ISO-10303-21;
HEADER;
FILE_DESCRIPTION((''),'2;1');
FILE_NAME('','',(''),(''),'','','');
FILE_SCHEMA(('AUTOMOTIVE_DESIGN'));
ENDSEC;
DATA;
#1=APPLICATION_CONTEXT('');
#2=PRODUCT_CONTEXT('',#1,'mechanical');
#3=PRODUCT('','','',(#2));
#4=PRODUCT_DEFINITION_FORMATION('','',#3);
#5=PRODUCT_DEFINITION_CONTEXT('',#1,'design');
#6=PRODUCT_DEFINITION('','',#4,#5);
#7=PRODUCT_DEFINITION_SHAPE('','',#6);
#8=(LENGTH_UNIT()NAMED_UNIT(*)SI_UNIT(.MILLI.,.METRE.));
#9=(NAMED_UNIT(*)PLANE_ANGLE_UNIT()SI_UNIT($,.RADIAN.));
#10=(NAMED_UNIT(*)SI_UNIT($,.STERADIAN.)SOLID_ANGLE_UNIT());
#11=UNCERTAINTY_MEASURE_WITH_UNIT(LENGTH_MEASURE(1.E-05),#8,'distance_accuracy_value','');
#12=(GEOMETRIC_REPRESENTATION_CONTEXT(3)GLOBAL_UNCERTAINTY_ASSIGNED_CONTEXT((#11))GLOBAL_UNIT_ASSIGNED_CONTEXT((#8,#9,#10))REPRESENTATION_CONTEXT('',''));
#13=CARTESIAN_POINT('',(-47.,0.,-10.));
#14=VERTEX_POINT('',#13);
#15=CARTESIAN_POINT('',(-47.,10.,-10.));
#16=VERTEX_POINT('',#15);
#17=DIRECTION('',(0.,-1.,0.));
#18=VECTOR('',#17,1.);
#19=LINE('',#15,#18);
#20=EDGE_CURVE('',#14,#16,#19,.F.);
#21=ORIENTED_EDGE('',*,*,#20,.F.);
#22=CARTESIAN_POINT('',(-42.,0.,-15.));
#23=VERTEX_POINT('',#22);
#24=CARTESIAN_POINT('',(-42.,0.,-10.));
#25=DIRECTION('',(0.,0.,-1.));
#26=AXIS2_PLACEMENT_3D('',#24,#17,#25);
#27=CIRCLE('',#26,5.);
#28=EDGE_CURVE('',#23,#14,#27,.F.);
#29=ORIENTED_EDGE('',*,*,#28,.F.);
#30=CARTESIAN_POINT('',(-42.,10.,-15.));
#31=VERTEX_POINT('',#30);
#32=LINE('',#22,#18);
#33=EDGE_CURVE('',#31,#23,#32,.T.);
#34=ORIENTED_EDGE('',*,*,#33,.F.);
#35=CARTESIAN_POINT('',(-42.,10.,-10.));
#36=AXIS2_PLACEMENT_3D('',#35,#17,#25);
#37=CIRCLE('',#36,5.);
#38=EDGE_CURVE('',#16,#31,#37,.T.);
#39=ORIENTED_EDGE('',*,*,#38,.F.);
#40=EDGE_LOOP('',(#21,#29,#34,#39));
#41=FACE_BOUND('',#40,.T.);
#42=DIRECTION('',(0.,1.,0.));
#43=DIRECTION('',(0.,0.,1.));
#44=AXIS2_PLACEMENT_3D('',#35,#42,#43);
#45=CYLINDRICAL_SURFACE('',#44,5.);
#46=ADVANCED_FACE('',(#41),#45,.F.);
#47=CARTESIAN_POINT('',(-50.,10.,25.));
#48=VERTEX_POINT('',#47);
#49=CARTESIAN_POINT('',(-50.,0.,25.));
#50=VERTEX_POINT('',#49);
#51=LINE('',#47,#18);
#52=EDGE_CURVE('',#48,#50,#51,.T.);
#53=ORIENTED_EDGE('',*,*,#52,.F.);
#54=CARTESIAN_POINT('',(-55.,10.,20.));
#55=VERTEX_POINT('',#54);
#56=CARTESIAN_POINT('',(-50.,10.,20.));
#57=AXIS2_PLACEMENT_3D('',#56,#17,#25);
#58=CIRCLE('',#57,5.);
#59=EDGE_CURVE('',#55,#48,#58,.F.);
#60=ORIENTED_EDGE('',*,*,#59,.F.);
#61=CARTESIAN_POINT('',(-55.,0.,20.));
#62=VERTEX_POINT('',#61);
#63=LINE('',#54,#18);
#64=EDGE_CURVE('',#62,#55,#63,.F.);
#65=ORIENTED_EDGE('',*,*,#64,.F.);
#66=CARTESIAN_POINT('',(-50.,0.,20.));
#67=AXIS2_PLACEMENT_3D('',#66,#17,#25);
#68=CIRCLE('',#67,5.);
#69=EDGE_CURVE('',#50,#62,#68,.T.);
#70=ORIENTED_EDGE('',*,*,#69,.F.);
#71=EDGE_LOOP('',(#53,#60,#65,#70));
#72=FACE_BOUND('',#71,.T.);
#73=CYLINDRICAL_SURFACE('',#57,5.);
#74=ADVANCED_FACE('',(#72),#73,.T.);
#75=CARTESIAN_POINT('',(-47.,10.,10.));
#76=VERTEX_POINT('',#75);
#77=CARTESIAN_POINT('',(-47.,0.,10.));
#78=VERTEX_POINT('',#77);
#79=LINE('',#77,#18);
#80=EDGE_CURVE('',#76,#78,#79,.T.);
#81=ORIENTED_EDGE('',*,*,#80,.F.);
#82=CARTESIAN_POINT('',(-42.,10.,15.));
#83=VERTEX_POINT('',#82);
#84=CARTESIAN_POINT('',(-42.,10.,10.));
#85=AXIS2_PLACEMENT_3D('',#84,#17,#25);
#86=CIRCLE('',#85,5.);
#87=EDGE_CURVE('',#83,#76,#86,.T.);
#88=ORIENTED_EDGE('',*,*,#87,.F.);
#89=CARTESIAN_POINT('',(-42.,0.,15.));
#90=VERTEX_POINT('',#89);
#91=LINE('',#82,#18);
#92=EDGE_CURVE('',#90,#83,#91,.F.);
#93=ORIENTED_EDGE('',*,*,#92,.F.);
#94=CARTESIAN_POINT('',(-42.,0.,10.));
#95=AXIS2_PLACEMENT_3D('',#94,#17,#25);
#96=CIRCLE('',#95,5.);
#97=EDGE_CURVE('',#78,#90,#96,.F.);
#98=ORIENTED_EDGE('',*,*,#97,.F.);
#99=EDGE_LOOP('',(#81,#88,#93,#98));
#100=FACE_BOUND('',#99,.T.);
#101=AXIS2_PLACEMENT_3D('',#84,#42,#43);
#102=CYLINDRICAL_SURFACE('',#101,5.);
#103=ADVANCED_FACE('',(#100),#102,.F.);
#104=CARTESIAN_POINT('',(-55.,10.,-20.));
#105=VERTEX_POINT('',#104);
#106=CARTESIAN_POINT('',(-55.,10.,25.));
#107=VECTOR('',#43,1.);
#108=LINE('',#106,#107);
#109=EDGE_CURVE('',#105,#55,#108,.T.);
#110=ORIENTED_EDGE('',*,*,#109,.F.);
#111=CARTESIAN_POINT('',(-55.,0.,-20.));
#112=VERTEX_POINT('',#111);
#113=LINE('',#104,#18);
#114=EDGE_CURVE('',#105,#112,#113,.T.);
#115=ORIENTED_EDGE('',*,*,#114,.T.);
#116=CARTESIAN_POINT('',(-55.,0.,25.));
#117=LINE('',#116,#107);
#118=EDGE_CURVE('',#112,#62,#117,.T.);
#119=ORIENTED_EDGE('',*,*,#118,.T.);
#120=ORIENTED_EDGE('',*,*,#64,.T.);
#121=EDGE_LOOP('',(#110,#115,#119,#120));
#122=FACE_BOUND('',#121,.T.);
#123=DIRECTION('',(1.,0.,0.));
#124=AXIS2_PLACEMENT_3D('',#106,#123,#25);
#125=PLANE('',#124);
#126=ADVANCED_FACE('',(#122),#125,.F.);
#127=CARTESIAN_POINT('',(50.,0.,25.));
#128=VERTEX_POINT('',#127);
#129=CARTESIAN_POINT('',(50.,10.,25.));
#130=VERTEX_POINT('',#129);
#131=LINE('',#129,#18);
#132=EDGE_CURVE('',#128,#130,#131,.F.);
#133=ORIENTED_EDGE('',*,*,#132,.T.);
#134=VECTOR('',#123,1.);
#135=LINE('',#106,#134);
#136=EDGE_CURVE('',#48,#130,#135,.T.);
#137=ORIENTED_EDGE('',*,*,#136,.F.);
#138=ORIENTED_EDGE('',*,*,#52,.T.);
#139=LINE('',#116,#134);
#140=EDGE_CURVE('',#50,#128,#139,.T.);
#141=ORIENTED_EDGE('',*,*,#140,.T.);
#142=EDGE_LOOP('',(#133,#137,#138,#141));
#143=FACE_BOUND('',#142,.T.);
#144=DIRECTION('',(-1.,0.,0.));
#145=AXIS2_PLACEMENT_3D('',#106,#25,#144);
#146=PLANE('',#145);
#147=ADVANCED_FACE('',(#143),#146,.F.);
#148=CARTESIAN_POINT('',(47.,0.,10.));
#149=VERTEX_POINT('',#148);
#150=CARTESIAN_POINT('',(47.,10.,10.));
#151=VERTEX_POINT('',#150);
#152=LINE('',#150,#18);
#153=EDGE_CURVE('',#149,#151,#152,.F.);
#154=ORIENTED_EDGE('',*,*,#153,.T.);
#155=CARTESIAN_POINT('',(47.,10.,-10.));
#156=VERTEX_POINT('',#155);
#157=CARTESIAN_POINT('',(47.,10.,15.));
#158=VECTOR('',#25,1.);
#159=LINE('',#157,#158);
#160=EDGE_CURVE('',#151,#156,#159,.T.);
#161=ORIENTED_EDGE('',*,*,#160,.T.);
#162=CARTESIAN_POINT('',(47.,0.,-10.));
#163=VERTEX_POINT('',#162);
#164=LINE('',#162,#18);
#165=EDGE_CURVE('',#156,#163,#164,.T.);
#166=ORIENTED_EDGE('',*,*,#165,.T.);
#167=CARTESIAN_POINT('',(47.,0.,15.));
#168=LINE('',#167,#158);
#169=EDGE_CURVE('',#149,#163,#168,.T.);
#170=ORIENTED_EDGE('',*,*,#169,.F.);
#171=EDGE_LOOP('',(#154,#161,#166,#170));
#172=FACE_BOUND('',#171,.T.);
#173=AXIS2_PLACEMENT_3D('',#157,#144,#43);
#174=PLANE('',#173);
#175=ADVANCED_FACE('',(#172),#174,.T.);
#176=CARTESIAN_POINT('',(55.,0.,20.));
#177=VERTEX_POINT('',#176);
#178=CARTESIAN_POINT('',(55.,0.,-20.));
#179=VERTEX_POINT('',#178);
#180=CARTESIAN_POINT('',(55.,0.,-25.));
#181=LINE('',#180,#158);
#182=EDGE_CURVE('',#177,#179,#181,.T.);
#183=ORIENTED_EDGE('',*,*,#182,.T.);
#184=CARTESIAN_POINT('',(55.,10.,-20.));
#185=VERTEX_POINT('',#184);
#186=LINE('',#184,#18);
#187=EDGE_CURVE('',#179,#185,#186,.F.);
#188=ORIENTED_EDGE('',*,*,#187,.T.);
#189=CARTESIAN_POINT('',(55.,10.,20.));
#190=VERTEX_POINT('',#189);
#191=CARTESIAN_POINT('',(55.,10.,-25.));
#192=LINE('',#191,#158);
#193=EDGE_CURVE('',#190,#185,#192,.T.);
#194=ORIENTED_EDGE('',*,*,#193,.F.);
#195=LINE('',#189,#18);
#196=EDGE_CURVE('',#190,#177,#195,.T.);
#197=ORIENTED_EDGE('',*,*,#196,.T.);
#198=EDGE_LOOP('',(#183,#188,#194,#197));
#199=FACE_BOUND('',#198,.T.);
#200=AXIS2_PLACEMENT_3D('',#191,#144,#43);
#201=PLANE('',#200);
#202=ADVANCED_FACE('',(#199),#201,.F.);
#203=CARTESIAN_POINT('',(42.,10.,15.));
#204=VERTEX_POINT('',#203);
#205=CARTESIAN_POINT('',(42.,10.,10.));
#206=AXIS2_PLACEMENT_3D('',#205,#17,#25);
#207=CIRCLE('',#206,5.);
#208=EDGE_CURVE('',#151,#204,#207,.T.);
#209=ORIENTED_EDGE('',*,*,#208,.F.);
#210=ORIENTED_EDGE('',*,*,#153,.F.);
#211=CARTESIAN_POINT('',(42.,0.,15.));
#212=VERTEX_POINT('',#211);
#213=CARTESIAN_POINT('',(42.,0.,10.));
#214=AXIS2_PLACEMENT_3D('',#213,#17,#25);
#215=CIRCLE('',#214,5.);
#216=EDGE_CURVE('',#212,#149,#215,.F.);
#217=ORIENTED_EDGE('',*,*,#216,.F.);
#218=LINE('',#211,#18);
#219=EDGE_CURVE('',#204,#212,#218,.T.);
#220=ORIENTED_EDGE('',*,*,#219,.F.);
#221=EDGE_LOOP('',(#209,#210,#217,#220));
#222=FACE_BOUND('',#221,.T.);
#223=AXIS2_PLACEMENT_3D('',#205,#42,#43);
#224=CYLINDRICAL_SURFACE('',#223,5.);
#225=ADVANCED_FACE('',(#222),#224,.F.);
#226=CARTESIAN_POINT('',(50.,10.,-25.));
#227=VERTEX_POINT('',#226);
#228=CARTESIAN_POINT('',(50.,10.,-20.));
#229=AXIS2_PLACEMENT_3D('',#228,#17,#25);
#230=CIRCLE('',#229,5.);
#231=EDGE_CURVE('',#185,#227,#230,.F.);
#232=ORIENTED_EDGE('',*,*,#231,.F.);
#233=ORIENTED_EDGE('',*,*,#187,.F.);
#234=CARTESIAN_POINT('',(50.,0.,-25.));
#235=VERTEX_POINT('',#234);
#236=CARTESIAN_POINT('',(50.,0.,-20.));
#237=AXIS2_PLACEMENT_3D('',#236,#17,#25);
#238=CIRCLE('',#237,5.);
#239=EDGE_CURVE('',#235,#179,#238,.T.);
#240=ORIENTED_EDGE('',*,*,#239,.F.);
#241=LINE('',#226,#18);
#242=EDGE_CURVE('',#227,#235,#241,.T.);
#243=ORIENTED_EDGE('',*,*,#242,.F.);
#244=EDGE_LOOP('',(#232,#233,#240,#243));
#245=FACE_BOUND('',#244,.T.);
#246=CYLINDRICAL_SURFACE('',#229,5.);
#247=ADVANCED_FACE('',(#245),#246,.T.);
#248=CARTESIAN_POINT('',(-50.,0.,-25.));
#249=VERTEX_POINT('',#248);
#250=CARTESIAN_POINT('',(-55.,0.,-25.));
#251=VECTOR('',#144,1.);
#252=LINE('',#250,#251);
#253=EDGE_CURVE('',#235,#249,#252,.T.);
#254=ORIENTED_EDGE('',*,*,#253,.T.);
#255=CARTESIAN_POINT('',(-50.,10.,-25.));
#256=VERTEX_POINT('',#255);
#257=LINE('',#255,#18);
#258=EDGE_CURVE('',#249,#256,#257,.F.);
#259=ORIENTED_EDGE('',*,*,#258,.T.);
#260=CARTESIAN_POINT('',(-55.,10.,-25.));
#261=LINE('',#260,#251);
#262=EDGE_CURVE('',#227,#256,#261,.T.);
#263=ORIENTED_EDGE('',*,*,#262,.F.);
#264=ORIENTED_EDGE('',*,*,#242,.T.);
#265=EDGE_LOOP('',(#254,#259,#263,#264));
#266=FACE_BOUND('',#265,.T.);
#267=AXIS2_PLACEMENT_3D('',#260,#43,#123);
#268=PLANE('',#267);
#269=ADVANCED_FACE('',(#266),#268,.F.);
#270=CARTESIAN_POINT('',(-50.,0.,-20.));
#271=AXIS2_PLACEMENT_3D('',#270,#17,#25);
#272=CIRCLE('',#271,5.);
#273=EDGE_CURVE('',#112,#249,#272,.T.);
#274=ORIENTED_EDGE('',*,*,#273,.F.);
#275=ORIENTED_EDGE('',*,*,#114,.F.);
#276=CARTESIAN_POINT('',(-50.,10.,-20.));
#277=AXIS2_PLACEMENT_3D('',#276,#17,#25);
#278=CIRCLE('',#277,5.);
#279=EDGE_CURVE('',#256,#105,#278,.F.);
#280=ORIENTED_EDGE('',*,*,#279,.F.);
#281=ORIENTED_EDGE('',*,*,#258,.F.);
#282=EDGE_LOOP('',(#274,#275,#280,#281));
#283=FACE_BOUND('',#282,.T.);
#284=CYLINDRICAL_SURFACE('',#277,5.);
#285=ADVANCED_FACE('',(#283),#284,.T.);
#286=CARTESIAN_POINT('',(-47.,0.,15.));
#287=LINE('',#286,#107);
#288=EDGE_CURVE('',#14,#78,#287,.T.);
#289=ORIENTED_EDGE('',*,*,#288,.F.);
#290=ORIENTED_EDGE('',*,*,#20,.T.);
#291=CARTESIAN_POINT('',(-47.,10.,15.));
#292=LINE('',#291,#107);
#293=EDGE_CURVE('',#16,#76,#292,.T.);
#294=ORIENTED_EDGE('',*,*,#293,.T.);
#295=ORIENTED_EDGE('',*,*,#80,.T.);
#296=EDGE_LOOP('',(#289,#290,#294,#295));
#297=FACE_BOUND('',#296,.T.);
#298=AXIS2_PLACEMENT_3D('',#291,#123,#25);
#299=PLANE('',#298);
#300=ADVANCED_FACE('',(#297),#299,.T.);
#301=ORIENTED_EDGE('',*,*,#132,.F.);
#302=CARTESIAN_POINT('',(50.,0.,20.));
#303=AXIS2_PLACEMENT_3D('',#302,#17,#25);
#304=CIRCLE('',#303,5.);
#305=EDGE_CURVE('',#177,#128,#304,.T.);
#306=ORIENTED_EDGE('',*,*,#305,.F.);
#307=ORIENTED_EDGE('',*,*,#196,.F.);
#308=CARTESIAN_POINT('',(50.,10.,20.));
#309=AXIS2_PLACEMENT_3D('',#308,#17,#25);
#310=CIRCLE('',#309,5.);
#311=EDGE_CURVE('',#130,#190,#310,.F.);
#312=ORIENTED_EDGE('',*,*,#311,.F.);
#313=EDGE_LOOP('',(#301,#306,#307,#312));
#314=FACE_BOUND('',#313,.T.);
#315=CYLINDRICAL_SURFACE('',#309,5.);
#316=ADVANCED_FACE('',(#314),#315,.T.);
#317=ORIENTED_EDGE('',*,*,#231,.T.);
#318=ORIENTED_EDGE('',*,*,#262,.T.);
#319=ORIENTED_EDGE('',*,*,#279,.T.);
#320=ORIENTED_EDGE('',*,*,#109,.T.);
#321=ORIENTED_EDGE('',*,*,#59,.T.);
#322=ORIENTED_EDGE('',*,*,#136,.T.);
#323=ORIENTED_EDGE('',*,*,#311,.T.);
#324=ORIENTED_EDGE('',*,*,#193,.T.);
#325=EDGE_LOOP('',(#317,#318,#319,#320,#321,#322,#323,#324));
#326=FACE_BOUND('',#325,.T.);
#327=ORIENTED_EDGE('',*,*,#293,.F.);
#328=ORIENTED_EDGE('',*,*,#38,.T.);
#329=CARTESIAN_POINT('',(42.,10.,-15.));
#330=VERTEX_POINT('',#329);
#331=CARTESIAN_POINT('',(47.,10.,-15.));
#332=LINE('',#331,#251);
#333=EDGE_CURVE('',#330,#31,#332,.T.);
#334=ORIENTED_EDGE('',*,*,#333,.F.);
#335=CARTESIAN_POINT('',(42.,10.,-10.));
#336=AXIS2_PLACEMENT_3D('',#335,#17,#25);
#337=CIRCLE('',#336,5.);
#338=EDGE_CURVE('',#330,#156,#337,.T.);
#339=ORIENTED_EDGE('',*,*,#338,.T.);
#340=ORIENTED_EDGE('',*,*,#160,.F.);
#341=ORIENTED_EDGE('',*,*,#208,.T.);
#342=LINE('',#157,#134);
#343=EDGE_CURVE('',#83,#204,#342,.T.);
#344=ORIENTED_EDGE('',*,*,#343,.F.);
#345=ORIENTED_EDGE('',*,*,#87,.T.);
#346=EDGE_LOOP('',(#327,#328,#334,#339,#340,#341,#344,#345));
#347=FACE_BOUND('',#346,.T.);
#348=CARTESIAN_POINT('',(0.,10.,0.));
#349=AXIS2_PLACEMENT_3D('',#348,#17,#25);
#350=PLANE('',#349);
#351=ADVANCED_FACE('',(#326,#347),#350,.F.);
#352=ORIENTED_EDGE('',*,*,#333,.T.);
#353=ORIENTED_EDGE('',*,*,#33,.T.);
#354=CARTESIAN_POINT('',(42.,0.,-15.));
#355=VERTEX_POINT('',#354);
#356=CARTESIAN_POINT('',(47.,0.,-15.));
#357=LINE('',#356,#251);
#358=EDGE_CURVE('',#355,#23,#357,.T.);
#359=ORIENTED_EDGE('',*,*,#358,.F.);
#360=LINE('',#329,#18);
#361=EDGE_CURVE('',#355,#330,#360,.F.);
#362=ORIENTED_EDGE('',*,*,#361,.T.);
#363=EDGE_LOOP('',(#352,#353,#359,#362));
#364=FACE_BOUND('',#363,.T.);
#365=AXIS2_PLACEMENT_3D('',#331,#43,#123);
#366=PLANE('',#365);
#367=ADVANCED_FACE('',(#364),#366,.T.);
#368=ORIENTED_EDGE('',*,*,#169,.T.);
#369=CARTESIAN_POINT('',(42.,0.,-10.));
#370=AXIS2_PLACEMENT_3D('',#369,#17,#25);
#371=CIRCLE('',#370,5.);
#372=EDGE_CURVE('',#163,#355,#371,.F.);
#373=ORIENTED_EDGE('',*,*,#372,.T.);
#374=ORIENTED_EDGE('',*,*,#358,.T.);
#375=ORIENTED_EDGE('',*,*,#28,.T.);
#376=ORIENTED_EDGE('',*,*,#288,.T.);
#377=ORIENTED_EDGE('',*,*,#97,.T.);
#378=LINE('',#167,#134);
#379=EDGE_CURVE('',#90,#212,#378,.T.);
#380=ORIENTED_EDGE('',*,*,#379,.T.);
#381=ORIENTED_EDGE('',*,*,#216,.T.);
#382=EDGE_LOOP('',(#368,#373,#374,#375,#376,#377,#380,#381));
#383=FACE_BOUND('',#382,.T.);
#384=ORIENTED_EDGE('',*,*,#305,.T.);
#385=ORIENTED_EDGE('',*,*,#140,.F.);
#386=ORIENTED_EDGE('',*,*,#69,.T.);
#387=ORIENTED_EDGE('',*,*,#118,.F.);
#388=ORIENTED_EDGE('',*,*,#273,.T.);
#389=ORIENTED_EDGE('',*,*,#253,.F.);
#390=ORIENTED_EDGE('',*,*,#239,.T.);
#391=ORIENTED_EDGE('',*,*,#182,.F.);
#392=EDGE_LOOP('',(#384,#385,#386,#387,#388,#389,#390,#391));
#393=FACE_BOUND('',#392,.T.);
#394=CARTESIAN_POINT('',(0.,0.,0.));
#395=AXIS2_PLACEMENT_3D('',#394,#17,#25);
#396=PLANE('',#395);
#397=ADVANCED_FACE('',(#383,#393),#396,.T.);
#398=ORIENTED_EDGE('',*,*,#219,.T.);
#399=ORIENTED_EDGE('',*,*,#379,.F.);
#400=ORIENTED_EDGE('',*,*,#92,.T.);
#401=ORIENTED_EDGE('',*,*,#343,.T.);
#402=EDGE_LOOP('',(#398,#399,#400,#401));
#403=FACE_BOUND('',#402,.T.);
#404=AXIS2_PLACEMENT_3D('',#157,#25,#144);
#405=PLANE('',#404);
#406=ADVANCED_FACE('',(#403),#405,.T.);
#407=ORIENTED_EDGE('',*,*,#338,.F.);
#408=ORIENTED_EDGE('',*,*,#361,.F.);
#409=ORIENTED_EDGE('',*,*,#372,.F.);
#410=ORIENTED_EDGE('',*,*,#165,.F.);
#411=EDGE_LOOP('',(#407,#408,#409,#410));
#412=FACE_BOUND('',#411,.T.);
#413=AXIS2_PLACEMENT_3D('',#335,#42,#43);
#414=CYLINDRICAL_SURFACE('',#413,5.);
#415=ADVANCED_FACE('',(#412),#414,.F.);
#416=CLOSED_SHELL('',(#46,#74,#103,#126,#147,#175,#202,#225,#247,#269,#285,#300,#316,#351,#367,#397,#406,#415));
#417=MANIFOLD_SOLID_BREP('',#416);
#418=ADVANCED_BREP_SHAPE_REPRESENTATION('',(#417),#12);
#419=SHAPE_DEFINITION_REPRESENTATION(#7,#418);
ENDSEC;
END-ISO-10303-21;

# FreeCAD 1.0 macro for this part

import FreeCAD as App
import Part
import Sketcher

V = App.Vector
Q = App.Units.Quantity


def edges_at(feature, points):
    """Names of the edges that pass closest to the given points."""
    edges = feature.Shape.Edges
    near = lambda p: min(range(len(edges)), key=lambda i: edges[i].distToShape(Part.Vertex(*p))[0])
    return sorted({f"Edge{near(p) + 1}" for p in points})

doc = App.newDocument("Part")
body = doc.addObject("PartDesign::Body", "Body")

sketch1 = doc.addObject("Sketcher::SketchObject", "Sketch")
body.addObject(sketch1)
sketch1.AttachmentSupport = (doc.XZ_Plane, [""])
sketch1.MapMode = "FlatFace"
sketch1.addGeometry([
    Part.LineSegment(V(-55, -25, 0), V(-55, 25, 0)),
    Part.LineSegment(V(-55, 25, 0), V(55, 25, 0)),
    Part.LineSegment(V(55, 25, 0), V(55, -25, 0)),
    Part.LineSegment(V(55, -25, 0), V(-55, -25, 0)),
    Part.LineSegment(V(47, 15, 0), V(-47, 15, 0)),
    Part.LineSegment(V(-47, 15, 0), V(-47, -15, 0)),
    Part.LineSegment(V(-47, -15, 0), V(47, -15, 0)),
    Part.LineSegment(V(47, -15, 0), V(47, 15, 0)),
], False)
sketch1.addConstraint([
    Sketcher.Constraint("Coincident", 0, 2, 1, 1),
    Sketcher.Constraint("Coincident", 1, 2, 2, 1),
    Sketcher.Constraint("Coincident", 2, 2, 3, 1),
    Sketcher.Constraint("Coincident", 3, 2, 0, 1),
    Sketcher.Constraint("Coincident", 4, 2, 5, 1),
    Sketcher.Constraint("Coincident", 5, 2, 6, 1),
    Sketcher.Constraint("Coincident", 6, 2, 7, 1),
    Sketcher.Constraint("Coincident", 7, 2, 4, 1),
    Sketcher.Constraint("Vertical", 0),
    Sketcher.Constraint("Horizontal", 1),
    Sketcher.Constraint("Vertical", 2),
    Sketcher.Constraint("Horizontal", 3),
    Sketcher.Constraint("Horizontal", 4),
    Sketcher.Constraint("Vertical", 5),
    Sketcher.Constraint("Horizontal", 6),
    Sketcher.Constraint("Vertical", 7),
    Sketcher.Constraint("Symmetric", 0, 2, 2, 2, -1, 1),
    Sketcher.Constraint("Symmetric", 4, 2, 6, 2, -1, 1),
    Sketcher.Constraint("DistanceX", 1, 1, 1, 2, Q("110 mm")),
    Sketcher.Constraint("DistanceX", 4, 2, 4, 1, Q("94 mm")),
    Sketcher.Constraint("DistanceY", 0, 1, 0, 2, Q("50 mm")),
    Sketcher.Constraint("DistanceY", 5, 2, 5, 1, Q("30 mm")),
])
pad1 = doc.addObject("PartDesign::Pad", "Pad")
body.addObject(pad1)
pad1.Profile = sketch1
pad1.Length = 10
pad1.Reversed = True
doc.recompute()

fillet = doc.addObject("PartDesign::Fillet", "Fillet")
body.addObject(fillet)
fillet.Base = (pad1, edges_at(pad1, [
    (-47, 5, -15),
    (-47, 5, 15),
    (47, 5, 15),
    (47, 5, -15),
    (-55, 5, 25),
    (-55, 5, -25),
    (55, 5, -25),
    (55, 5, 25),
]))
fillet.Radius = 5

doc.recompute()
